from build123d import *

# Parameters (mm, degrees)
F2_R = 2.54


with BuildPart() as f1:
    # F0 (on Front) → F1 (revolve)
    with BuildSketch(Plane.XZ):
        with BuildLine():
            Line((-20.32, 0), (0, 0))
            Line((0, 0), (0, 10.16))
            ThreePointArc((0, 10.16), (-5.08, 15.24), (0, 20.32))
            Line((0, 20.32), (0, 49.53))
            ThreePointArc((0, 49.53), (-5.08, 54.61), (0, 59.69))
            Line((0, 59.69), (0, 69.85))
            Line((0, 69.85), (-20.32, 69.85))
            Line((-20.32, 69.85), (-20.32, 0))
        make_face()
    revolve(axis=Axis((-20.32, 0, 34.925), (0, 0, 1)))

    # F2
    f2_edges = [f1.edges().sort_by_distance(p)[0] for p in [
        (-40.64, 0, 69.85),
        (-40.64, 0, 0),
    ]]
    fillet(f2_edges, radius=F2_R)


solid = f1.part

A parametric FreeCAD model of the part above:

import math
import FreeCAD as App
import Part
import Sketcher
from FreeCAD import Vector
Q = App.Units.Quantity


def edges_at(feature, points):
    """Names of the edges that pass closest to the given points."""
    edges = feature.Shape.Edges
    near = lambda p: min(range(len(edges)), key=lambda i: edges[i].distToShape(Part.Vertex(*p))[0])
    return sorted({f"Edge{near(p) + 1}" for p in points})

doc = App.newDocument("Part")
body = doc.addObject("PartDesign::Body", "Body")

sketch1 = doc.addObject("Sketcher::SketchObject", "Sketch")
body.addObject(sketch1)
sketch1.AttachmentSupport = (doc.XZ_Plane, [""])
sketch1.MapMode = "FlatFace"
sketch1.addGeometry(Part.LineSegment(Vector(-20.32, 0, 0), Vector(0, 0, 0)), False)
sketch1.addGeometry(Part.LineSegment(Vector(0, 0, 0), Vector(0, 10.16, 0)), False)
sketch1.addGeometry(Part.ArcOfCircle(Part.Circle(Vector(0, 15.24, 0), Vector(0, 0, 1), 5.08), math.radians(90), math.radians(270)), False)
sketch1.addGeometry(Part.LineSegment(Vector(0, 20.32, 0), Vector(0, 49.53, 0)), False)
sketch1.addGeometry(Part.ArcOfCircle(Part.Circle(Vector(0, 54.61, 0), Vector(0, 0, 1), 5.08), math.radians(90), math.radians(270)), False)
sketch1.addGeometry(Part.LineSegment(Vector(0, 59.69, 0), Vector(0, 69.85, 0)), False)
sketch1.addGeometry(Part.LineSegment(Vector(0, 69.85, 0), Vector(-20.32, 69.85, 0)), False)
sketch1.addGeometry(Part.LineSegment(Vector(-20.32, 69.85, 0), Vector(-20.32, 0, 0)), False)
sketch1.addGeometry(Part.LineSegment(Vector(-20.32, 0, 0), Vector(-20.32, 69.85, 0)), True)
sketch1.addConstraint(Sketcher.Constraint("Coincident", 0, 2, 1, 1))
sketch1.addConstraint(Sketcher.Constraint("Coincident", 1, 2, 2, 2))
sketch1.addConstraint(Sketcher.Constraint("Coincident", 2, 1, 3, 1))
sketch1.addConstraint(Sketcher.Constraint("Coincident", 3, 2, 4, 2))
sketch1.addConstraint(Sketcher.Constraint("Coincident", 4, 1, 5, 1))
sketch1.addConstraint(Sketcher.Constraint("Coincident", 5, 2, 6, 1))
sketch1.addConstraint(Sketcher.Constraint("Coincident", 6, 2, 7, 1))
sketch1.addConstraint(Sketcher.Constraint("Coincident", 7, 2, 0, 1))
sketch1.addConstraint(Sketcher.Constraint("Horizontal", 0))
sketch1.addConstraint(Sketcher.Constraint("Vertical", 1))
sketch1.addConstraint(Sketcher.Constraint("Vertical", 3))
sketch1.addConstraint(Sketcher.Constraint("Vertical", 5))
sketch1.addConstraint(Sketcher.Constraint("Horizontal", 6))
sketch1.addConstraint(Sketcher.Constraint("Vertical", 7))
sketch1.addConstraint(Sketcher.Constraint("Vertical", 8))
sketch1.addConstraint(Sketcher.Constraint("Coincident", 0, 2, -1, 1))
sketch1.addConstraint(Sketcher.Constraint("Coincident", 8, 1, 7, 2))
sketch1.addConstraint(Sketcher.Constraint("Equal", 2, 4))
sketch1.addConstraint(Sketcher.Constraint("PointOnObject", 2, 3, -2))
sketch1.addConstraint(Sketcher.Constraint("PointOnObject", 4, 3, -2))
sketch1.addConstraint(Sketcher.Constraint("PointOnObject", 2, 1, -2))
sketch1.addConstraint(Sketcher.Constraint("PointOnObject", 4, 1, -2))
sketch1.addConstraint(Sketcher.Constraint("Horizontal", 5, 2, 8, 2))
sketch1.addConstraint(Sketcher.Constraint("Equal", 1, 5))
sketch1.addConstraint(Sketcher.Constraint("Radius", 2, Q("0.2 in")))
sketch1.addConstraint(Sketcher.Constraint("DistanceX", 0, 1, 0, 2, Q("0.8 in")))
sketch1.addConstraint(Sketcher.Constraint("DistanceY", 1, 1, 1, 2, Q("0.4 in")))
sketch1.addConstraint(Sketcher.Constraint("DistanceY", 3, 1, 3, 2, Q("1.15 in")))
revolution = doc.addObject("PartDesign::Revolution", "Revolution")
body.addObject(revolution)
revolution.Profile = sketch1
revolution.ReferenceAxis = (sketch1, ["Axis0"])
revolution.Angle = 360
doc.recompute()

fillet = doc.addObject("PartDesign::Fillet", "Fillet")
body.addObject(fillet)
fillet.Base = (revolution, edges_at(revolution, [(-40.64, 0, 69.85), (-40.64, 0, 0)]))
fillet.Radius = Q("0.1 in")

doc.recompute()
